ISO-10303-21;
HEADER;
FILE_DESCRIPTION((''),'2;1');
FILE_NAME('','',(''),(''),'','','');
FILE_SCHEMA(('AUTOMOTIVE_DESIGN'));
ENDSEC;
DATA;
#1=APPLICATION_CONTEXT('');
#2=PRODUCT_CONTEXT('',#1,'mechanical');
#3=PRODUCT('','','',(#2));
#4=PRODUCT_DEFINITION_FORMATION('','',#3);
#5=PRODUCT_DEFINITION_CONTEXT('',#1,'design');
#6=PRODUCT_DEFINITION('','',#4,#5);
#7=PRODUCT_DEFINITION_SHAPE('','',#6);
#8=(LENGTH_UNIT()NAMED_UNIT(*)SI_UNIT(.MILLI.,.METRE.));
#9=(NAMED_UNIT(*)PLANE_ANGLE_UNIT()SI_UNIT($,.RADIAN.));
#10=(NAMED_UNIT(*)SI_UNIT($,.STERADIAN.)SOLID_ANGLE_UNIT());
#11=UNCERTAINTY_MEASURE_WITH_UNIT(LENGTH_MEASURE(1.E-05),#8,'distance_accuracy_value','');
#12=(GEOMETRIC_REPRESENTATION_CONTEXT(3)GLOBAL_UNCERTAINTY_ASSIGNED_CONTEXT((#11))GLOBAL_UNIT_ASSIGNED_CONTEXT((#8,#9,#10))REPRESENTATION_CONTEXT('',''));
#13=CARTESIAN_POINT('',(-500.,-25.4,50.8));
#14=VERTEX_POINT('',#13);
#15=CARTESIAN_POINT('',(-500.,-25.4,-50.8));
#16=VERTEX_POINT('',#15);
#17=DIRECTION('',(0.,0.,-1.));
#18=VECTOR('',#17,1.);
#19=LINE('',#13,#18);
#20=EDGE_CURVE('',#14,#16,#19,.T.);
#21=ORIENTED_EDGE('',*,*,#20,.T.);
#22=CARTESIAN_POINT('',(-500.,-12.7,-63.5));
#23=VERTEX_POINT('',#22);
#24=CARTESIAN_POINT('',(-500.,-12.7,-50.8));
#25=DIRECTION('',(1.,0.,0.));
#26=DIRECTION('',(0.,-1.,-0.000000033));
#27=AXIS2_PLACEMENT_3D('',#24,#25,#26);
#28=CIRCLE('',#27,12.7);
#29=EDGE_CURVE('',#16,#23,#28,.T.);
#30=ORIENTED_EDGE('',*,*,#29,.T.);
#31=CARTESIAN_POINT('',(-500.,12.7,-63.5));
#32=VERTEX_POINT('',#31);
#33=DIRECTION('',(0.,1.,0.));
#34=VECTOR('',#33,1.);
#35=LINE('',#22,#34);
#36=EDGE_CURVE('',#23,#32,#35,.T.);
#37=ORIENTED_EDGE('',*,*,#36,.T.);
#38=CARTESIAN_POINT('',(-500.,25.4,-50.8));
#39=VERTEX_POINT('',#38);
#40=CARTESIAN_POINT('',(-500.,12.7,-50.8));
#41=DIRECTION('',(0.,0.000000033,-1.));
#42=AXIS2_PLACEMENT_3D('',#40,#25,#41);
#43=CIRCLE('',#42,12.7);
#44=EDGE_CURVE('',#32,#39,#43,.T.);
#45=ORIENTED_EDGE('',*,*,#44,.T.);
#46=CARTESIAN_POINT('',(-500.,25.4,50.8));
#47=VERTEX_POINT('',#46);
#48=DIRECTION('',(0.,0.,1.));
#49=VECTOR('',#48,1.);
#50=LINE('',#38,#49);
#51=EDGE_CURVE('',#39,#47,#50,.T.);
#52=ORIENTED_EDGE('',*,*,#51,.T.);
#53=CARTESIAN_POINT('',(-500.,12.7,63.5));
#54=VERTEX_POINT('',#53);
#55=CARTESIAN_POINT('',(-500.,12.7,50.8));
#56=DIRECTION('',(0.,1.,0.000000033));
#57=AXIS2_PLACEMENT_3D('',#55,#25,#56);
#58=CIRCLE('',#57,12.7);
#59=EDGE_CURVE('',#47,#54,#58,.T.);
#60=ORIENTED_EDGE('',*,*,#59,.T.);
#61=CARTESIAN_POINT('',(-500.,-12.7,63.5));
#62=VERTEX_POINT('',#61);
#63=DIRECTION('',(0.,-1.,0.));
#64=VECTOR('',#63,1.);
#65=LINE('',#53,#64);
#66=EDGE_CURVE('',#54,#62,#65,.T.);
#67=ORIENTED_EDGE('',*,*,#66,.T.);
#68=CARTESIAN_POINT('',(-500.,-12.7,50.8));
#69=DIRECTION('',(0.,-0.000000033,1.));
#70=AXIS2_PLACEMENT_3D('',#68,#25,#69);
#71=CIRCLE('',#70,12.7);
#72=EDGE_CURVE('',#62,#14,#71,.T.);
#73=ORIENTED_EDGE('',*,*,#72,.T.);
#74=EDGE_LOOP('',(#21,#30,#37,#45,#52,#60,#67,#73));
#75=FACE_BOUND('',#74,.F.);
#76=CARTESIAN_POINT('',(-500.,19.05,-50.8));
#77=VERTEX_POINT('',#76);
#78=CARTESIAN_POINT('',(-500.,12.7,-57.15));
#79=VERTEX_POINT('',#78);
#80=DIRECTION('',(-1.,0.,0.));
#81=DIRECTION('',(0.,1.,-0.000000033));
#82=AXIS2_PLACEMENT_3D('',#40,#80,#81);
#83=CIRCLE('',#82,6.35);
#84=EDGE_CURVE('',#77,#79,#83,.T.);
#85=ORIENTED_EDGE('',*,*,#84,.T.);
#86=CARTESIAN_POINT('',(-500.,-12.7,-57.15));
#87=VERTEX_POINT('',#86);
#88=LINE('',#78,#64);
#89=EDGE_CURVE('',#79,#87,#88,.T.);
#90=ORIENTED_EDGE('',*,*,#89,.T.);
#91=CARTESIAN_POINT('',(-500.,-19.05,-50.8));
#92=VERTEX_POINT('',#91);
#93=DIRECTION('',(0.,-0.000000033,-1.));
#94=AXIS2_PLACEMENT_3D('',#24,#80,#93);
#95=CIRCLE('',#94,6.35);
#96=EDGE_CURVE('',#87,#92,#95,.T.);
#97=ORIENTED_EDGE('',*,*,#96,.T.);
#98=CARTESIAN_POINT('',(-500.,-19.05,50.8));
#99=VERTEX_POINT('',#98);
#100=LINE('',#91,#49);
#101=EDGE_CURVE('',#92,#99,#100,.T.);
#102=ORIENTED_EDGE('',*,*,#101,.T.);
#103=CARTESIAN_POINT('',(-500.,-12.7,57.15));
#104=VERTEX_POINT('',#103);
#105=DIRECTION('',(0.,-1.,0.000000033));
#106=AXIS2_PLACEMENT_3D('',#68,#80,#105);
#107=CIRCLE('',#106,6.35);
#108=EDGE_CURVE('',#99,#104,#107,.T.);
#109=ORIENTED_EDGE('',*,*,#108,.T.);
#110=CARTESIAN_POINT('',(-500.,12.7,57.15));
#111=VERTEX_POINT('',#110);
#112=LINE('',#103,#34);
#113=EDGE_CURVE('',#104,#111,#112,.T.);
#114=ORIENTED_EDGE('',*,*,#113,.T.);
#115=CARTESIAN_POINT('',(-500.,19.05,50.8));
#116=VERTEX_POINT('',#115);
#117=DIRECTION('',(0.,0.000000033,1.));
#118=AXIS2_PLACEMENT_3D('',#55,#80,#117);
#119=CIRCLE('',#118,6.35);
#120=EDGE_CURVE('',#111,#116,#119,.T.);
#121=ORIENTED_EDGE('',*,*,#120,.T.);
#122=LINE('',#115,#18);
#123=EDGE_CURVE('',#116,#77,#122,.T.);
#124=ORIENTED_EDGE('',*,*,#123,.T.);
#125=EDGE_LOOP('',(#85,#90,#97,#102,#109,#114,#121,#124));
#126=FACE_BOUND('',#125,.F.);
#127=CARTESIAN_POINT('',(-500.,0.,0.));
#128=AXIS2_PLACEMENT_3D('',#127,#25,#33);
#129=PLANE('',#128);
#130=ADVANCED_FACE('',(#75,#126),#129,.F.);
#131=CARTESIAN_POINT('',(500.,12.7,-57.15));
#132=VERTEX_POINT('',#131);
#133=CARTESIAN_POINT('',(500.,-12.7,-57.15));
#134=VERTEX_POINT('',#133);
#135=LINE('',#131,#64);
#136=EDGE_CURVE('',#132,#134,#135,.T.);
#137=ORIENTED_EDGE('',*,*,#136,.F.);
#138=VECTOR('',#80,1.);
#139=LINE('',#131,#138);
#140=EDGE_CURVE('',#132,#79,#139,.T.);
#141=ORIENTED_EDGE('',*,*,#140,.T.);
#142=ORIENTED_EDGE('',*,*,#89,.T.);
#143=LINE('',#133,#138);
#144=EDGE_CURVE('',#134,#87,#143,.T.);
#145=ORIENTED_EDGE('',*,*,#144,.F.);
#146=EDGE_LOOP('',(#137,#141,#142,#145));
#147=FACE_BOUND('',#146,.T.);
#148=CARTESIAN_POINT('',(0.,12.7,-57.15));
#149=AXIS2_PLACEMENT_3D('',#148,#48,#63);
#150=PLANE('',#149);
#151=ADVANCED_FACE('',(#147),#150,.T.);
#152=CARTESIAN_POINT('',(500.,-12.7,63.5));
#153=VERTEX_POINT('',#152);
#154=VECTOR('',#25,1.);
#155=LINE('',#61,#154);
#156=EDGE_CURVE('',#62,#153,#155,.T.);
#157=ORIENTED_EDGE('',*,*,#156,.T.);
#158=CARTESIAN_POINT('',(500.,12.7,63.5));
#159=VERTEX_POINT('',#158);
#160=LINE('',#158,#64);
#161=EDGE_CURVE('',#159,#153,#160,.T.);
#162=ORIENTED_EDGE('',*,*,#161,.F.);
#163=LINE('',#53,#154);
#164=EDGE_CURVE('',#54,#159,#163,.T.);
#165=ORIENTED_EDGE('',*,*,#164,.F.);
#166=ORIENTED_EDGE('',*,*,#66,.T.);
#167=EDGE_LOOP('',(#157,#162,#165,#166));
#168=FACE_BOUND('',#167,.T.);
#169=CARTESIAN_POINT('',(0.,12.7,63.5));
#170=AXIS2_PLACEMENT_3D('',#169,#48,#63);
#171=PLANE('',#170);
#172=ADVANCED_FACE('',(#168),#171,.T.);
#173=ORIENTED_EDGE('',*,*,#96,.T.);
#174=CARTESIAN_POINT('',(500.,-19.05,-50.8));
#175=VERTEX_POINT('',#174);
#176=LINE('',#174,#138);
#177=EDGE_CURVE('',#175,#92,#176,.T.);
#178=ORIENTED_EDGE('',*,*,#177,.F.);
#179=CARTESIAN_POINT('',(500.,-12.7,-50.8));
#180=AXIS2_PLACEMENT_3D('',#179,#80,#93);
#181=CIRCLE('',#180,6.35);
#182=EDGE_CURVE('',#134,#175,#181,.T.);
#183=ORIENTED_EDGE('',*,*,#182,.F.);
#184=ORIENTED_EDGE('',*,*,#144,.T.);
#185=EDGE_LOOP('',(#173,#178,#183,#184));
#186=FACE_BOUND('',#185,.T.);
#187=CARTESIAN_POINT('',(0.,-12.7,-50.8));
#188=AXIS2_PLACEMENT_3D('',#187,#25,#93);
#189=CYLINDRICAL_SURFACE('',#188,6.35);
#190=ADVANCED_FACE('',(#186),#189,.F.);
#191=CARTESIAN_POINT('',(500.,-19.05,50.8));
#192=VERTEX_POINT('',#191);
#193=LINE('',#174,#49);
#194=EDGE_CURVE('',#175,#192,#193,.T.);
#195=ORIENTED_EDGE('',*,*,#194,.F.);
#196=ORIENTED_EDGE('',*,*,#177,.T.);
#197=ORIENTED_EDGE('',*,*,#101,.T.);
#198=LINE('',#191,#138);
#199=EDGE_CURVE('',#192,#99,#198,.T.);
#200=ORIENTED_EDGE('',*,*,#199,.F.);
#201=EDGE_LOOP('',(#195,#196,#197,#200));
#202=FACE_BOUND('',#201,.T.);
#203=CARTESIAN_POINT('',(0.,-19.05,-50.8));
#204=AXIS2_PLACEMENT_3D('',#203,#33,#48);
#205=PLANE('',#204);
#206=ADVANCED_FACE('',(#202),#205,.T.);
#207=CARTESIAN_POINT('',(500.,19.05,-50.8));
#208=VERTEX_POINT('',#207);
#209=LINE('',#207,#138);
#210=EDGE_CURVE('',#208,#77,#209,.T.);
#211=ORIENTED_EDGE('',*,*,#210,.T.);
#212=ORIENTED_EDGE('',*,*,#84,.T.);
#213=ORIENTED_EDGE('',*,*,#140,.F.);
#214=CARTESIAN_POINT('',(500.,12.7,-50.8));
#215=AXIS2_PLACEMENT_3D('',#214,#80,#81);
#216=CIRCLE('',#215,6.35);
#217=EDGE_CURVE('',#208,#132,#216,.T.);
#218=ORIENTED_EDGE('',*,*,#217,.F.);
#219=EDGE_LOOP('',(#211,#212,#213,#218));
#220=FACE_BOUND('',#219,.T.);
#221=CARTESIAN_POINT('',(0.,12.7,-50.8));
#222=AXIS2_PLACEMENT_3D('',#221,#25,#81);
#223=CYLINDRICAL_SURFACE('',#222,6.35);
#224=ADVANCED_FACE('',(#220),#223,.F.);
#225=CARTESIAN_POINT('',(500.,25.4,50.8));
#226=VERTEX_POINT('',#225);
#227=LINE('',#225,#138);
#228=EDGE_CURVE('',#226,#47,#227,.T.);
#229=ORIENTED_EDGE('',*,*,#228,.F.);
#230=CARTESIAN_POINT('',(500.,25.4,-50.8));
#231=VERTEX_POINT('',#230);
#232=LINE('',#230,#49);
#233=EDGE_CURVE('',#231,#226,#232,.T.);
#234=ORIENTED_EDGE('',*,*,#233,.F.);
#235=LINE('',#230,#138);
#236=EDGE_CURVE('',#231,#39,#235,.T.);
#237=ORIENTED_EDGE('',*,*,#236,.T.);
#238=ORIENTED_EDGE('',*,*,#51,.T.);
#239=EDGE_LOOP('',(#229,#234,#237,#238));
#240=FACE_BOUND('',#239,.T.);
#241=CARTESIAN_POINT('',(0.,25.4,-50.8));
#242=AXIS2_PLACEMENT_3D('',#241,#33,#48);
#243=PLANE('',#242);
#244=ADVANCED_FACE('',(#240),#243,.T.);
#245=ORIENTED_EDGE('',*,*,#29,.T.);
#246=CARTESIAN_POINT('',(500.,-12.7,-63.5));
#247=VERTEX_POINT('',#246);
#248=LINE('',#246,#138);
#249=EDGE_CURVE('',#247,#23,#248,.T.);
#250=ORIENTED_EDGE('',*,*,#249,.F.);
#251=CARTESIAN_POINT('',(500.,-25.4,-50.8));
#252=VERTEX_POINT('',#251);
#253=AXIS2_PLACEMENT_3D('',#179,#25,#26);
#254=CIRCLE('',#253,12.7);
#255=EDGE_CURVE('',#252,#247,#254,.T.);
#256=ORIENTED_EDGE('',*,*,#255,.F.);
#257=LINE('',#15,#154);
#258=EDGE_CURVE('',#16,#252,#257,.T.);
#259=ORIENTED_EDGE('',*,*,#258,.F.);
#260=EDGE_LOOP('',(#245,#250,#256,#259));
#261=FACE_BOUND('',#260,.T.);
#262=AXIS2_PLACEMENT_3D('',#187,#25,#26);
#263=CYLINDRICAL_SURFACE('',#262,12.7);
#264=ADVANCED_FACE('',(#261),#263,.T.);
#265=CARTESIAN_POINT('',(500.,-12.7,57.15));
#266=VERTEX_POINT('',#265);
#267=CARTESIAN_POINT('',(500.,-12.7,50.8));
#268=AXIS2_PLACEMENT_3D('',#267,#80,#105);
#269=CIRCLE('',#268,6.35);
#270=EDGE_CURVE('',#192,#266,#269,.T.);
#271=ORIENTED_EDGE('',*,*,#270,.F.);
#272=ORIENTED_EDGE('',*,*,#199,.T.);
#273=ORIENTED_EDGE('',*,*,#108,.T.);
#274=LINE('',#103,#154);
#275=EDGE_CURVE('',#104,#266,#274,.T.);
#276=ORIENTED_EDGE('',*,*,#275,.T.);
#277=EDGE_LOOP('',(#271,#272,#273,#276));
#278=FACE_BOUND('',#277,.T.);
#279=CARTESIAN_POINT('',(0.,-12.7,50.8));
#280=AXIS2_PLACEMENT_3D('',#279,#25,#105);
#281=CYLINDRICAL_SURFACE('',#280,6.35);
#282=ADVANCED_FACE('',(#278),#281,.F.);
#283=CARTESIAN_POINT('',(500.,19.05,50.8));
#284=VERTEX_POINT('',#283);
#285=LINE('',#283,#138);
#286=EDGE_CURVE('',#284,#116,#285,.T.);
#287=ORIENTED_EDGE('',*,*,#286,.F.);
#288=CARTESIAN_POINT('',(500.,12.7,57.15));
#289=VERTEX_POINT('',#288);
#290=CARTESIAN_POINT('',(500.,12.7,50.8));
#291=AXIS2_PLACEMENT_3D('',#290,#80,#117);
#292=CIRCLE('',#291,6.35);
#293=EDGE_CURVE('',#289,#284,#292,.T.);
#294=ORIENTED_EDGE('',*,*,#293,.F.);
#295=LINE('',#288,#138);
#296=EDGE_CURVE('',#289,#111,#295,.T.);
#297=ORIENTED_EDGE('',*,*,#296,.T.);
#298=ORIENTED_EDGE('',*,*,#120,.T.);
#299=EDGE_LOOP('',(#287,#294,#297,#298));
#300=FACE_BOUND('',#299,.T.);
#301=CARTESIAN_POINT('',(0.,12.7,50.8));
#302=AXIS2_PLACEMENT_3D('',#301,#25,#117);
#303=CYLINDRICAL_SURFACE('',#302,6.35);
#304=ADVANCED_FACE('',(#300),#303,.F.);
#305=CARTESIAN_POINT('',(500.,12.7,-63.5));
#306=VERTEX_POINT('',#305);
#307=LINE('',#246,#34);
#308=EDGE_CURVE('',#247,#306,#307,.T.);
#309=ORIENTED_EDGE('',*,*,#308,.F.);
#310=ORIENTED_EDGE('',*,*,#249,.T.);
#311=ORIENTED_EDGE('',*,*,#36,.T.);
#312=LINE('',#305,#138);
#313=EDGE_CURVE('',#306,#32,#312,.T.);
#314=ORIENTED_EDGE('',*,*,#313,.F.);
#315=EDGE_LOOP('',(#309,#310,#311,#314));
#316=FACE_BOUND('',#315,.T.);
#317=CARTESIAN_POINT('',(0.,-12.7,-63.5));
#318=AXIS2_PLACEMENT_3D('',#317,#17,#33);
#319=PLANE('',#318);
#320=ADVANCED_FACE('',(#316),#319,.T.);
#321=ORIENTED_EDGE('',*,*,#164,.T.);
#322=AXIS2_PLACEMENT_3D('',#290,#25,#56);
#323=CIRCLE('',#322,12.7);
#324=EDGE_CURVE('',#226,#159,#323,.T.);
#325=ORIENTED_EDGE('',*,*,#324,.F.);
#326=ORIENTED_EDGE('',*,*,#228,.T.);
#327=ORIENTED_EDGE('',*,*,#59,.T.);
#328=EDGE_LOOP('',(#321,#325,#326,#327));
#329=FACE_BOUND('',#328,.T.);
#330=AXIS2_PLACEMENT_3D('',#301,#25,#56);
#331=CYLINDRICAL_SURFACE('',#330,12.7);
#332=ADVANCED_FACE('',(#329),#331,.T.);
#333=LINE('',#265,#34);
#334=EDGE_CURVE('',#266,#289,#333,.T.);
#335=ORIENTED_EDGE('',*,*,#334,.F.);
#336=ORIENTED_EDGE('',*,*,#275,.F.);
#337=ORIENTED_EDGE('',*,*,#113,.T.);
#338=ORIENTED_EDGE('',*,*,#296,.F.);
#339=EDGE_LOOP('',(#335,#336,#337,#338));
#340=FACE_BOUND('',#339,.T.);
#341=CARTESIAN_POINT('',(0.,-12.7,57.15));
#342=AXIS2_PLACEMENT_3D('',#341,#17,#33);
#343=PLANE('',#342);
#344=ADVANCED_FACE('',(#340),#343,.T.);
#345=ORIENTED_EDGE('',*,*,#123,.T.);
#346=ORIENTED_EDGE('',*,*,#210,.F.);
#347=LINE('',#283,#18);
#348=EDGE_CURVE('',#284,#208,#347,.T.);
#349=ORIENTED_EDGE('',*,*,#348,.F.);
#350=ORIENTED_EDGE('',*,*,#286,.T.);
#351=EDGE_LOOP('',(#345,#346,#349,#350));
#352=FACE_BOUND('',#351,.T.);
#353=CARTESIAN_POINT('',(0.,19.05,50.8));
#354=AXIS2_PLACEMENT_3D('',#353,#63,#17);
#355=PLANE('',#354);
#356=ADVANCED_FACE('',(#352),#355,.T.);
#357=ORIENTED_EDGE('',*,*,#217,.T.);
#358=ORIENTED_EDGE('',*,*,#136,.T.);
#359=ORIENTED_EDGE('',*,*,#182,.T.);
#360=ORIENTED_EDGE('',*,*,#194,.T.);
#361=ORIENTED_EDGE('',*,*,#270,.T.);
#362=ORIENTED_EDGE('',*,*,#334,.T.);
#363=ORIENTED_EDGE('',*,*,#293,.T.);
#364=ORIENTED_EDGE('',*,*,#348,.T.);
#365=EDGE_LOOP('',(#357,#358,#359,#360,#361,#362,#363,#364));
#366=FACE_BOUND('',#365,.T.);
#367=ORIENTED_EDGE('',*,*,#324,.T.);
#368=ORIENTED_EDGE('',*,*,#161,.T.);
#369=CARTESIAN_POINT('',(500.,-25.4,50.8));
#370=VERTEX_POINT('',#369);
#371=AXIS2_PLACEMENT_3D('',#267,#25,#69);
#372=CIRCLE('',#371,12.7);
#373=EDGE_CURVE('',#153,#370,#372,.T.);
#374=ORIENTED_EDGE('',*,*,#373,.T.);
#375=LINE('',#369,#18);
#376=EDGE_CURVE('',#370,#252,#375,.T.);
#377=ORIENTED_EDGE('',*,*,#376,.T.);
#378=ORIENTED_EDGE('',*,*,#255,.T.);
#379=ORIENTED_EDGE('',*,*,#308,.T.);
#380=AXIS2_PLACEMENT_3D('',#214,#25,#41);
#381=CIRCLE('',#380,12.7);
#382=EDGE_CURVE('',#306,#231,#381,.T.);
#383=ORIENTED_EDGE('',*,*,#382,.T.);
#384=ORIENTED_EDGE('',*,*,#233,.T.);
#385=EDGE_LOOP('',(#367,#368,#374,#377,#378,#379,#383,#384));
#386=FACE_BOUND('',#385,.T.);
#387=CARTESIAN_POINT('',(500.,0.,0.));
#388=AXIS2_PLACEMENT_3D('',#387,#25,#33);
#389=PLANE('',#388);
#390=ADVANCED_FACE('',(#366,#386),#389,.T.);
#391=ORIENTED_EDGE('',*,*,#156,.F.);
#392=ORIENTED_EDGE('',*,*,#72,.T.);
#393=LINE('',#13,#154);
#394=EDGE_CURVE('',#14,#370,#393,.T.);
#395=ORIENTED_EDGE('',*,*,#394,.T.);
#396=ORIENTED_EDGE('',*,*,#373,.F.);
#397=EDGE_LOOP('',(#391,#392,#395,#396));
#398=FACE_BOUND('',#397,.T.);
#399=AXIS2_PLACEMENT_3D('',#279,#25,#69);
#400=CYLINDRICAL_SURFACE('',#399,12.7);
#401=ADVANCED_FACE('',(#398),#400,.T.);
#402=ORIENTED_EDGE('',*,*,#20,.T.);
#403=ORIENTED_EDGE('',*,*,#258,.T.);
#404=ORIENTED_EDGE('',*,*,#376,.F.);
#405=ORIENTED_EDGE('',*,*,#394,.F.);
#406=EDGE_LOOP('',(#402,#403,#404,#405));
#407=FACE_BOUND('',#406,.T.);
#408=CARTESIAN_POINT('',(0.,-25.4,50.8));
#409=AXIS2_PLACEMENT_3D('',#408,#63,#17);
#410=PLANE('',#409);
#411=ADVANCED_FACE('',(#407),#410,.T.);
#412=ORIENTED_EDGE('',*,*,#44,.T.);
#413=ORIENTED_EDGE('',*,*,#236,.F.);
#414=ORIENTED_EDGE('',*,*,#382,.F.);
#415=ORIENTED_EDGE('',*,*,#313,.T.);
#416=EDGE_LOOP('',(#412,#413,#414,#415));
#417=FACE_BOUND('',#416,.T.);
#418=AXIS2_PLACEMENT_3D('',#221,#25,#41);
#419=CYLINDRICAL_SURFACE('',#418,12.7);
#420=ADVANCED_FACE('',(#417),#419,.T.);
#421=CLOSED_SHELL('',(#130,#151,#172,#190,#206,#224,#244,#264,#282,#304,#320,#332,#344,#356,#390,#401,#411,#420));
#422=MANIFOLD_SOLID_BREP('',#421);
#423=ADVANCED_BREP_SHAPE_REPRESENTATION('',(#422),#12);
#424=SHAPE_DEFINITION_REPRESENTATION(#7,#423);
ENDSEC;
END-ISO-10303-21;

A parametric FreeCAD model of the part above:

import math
import FreeCAD as App
import Part
import Sketcher

V = App.Vector
Q = App.Units.Quantity

doc = App.newDocument("Part")
body = doc.addObject("PartDesign::Body", "Body")

# Sketch on YZ plane
sketch1 = doc.addObject("Sketcher::SketchObject", "Sketch")
body.addObject(sketch1)
sketch1.AttachmentSupport = (doc.YZ_Plane, [""])
sketch1.MapMode = "FlatFace"
sketch1.addGeometry(Part.ArcOfCircle(Part.Circle(V(12.7, 50.8, 0), V(0, 0, 1), 12.7), math.radians(0.000002), math.radians(89.999998)), False)
sketch1.addGeometry(Part.LineSegment(V(12.7, 63.5, 0), V(-12.7, 63.5, 0)), False)
sketch1.addGeometry(Part.ArcOfCircle(Part.Circle(V(-12.7, 50.8, 0), V(0, 0, 1), 12.7), math.radians(90.000002), math.radians(179.999998)), False)
sketch1.addGeometry(Part.LineSegment(V(-25.4, 50.8, 0), V(-25.4, -50.8, 0)), False)
sketch1.addGeometry(Part.ArcOfCircle(Part.Circle(V(-12.7, -50.8, 0), V(0, 0, 1), 12.7), math.radians(-179.999998), math.radians(-90.000002)), False)
sketch1.addGeometry(Part.LineSegment(V(-12.7, -63.5, 0), V(12.7, -63.5, 0)), False)
sketch1.addGeometry(Part.ArcOfCircle(Part.Circle(V(12.7, -50.8, 0), V(0, 0, 1), 12.7), math.radians(-89.999998), math.radians(-0.000002)), False)
sketch1.addGeometry(Part.LineSegment(V(25.4, -50.8, 0), V(25.4, 50.8, 0)), False)
sketch1.addGeometry(Part.ArcOfCircle(Part.Circle(V(-12.7, 50.8, 0), V(0, 0, 1), 6.35), math.radians(90.000002), math.radians(179.999998)), False)
sketch1.addGeometry(Part.LineSegment(V(-12.7, 57.15, 0), V(12.7, 57.15, 0)), False)
sketch1.addGeometry(Part.ArcOfCircle(Part.Circle(V(12.7, 50.8, 0), V(0, 0, 1), 6.35), math.radians(0.000002), math.radians(89.999998)), False)
sketch1.addGeometry(Part.LineSegment(V(19.05, 50.8, 0), V(19.05, -50.8, 0)), False)
sketch1.addGeometry(Part.ArcOfCircle(Part.Circle(V(12.7, -50.8, 0), V(0, 0, 1), 6.35), math.radians(-89.999998), math.radians(-0.000002)), False)
sketch1.addGeometry(Part.LineSegment(V(12.7, -57.15, 0), V(-12.7, -57.15, 0)), False)
sketch1.addGeometry(Part.ArcOfCircle(Part.Circle(V(-12.7, -50.8, 0), V(0, 0, 1), 6.35), math.radians(-179.999998), math.radians(-90.000002)), False)
sketch1.addGeometry(Part.LineSegment(V(-19.05, -50.8, 0), V(-19.05, 50.8, 0)), False)
sketch1.addConstraint(Sketcher.Constraint("Tangent", 0, 2, 1, 1))
sketch1.addConstraint(Sketcher.Constraint("Tangent", 1, 2, 2, 1))
sketch1.addConstraint(Sketcher.Constraint("Tangent", 2, 2, 3, 1))
sketch1.addConstraint(Sketcher.Constraint("Tangent", 3, 2, 4, 1))
sketch1.addConstraint(Sketcher.Constraint("Tangent", 4, 2, 5, 1))
sketch1.addConstraint(Sketcher.Constraint("Tangent", 5, 2, 6, 1))
sketch1.addConstraint(Sketcher.Constraint("Tangent", 6, 2, 7, 1))
sketch1.addConstraint(Sketcher.Constraint("Tangent", 7, 2, 0, 1))
sketch1.addConstraint(Sketcher.Constraint("Tangent", 8, 1, 9, 1))
sketch1.addConstraint(Sketcher.Constraint("Tangent", 9, 2, 10, 2))
sketch1.addConstraint(Sketcher.Constraint("Tangent", 10, 1, 11, 1))
sketch1.addConstraint(Sketcher.Constraint("Tangent", 11, 2, 12, 2))
sketch1.addConstraint(Sketcher.Constraint("Tangent", 12, 1, 13, 1))
sketch1.addConstraint(Sketcher.Constraint("Tangent", 13, 2, 14, 2))
sketch1.addConstraint(Sketcher.Constraint("Tangent", 14, 1, 15, 1))
sketch1.addConstraint(Sketcher.Constraint("Tangent", 15, 2, 8, 2))
sketch1.addConstraint(Sketcher.Constraint("Horizontal", 1))
sketch1.addConstraint(Sketcher.Constraint("Vertical", 3))
sketch1.addConstraint(Sketcher.Constraint("Horizontal", 5))
sketch1.addConstraint(Sketcher.Constraint("Vertical", 7))
sketch1.addConstraint(Sketcher.Constraint("Horizontal", 9))
sketch1.addConstraint(Sketcher.Constraint("Vertical", 11))
sketch1.addConstraint(Sketcher.Constraint("Horizontal", 13))
sketch1.addConstraint(Sketcher.Constraint("Vertical", 15))
sketch1.addConstraint(Sketcher.Constraint("Coincident", 8, 3, 2, 3))
sketch1.addConstraint(Sketcher.Constraint("Coincident", 10, 3, 0, 3))
sketch1.addConstraint(Sketcher.Constraint("Coincident", 12, 3, 6, 3))
sketch1.addConstraint(Sketcher.Constraint("Equal", 0, 2))
sketch1.addConstraint(Sketcher.Constraint("Equal", 2, 4))
sketch1.addConstraint(Sketcher.Constraint("Equal", 4, 6))
sketch1.addConstraint(Sketcher.Constraint("Equal", 12, 14))
sketch1.addConstraint(Sketcher.Constraint("Symmetric", 0, 3, 4, 3, -1, 1))
sketch1.addConstraint(Sketcher.Constraint("Radius", 0, Q("0.5 in")))
sketch1.addConstraint(Sketcher.Constraint("DistanceX", 1, 2, 1, 1, Q("1 in")))
sketch1.addConstraint(Sketcher.Constraint("DistanceY", 3, 2, 3, 1, Q("4 in")))
sketch1.addConstraint(Sketcher.Constraint("Radius", 8, Q("0.25 in")))
pad1 = doc.addObject("PartDesign::Pad", "Pad")
body.addObject(pad1)
pad1.Profile = sketch1
pad1.Length = 1000
pad1.Midplane = True
body2 = doc.addObject("PartDesign::Body", "Body001")
doc.recompute()

body2.BaseFeature = body
doc.recompute()
body.Visibility = False

doc.recompute()
